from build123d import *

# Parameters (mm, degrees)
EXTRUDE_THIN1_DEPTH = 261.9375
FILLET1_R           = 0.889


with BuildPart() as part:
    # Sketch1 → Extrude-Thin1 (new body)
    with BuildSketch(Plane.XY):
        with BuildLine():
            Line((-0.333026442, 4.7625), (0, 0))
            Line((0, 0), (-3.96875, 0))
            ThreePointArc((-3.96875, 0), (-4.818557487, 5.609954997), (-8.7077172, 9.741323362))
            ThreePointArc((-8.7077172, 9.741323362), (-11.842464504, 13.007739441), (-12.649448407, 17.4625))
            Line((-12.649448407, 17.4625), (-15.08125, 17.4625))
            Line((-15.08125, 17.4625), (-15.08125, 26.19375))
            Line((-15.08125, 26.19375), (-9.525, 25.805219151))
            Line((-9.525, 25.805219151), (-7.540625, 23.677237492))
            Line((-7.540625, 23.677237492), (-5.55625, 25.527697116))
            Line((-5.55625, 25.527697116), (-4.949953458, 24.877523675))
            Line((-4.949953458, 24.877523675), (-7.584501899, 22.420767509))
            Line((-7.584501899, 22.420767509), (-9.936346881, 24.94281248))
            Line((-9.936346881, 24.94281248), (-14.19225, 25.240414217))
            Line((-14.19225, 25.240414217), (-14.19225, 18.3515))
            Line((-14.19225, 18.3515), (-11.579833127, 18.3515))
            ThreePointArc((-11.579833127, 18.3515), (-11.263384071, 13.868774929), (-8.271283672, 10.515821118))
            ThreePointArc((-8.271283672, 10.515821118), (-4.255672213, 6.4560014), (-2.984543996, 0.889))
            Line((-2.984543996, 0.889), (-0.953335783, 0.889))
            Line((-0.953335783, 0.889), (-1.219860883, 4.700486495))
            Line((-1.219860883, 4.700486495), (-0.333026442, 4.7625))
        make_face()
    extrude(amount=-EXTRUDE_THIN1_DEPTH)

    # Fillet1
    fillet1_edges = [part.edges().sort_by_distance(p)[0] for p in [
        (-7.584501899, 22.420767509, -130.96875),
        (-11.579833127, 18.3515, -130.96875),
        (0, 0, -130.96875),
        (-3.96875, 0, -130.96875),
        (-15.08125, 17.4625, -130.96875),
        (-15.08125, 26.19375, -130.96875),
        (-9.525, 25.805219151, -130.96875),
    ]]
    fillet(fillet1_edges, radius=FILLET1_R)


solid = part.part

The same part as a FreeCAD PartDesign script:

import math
import FreeCAD as App
import Part
import Sketcher
from FreeCAD import Vector
Q = App.Units.Quantity


def edges_at(feature, points):
    """Names of the edges that pass closest to the given points."""
    edges = feature.Shape.Edges
    near = lambda p: min(range(len(edges)), key=lambda i: edges[i].distToShape(Part.Vertex(*p))[0])
    return sorted({f"Edge{near(p) + 1}" for p in points})

doc = App.newDocument("Part")
params = doc.addObject("Spreadsheet::Sheet", "Params")
for row, (alias, value) in enumerate([
    ("sketch1_radius", "0.41 in"),
    ("sketch1_radius2", "0.375 in"),
    ("sketch1_width", "0.15625 in"),
    ("sketch1_height", "0.34375 in"),
    ("sketch1_length", "0.035 in"),
    ("pad1_length", "10.3125 in"),
    ("fillet_radius", "0.035 in"),
], start=1):
    params.set(f"A{row}", alias)
    params.set(f"B{row}", "=" + value)
    params.setAlias(f"B{row}", alias)

body = doc.addObject("PartDesign::Body", "Body")

# Sketch on XY plane
sketch1 = doc.addObject("Sketcher::SketchObject", "Sketch")
body.addObject(sketch1)
sketch1.AttachmentSupport = (doc.XY_Plane, [""])
sketch1.MapMode = "FlatFace"
sketch1.addGeometry(Part.LineSegment(Vector(0, 0, 0), Vector(-0.3, 4.8, 0)), False)
sketch1.addGeometry(Part.LineSegment(Vector(-0.3, 4.8, 0), Vector(-1.2, 4.7, 0)), False)
sketch1.addGeometry(Part.LineSegment(Vector(-1.2, 4.7, 0), Vector(-1, 0.9, 0)), False)
sketch1.addGeometry(Part.LineSegment(Vector(-1, 0.9, 0), Vector(-3, 0.9, 0)), False)
sketch1.addGeometry(Part.ArcOfCircle(Part.Circle(Vector(-13.4, 1.4, 0), Vector(0, 0, 1), 10.4), math.radians(-3), math.radians(61)), False)
sketch1.addGeometry(Part.ArcOfCircle(Part.Circle(Vector(-4.9, 16.6, 0), Vector(0, 0, 1), 7), math.radians(165), math.radians(241)), False)
sketch1.addGeometry(Part.LineSegment(Vector(-11.6, 18.4, 0), Vector(-14.2, 18.4, 0)), False)
sketch1.addGeometry(Part.LineSegment(Vector(-14.2, 18.4, 0), Vector(-14.2, 25.2, 0)), False)
sketch1.addGeometry(Part.LineSegment(Vector(-14.2, 25.2, 0), Vector(-9.9, 24.9, 0)), False)
sketch1.addGeometry(Part.LineSegment(Vector(-9.9, 24.9, 0), Vector(-7.6, 22.4, 0)), False)
sketch1.addGeometry(Part.LineSegment(Vector(-7.6, 22.4, 0), Vector(-4.9, 24.9, 0)), False)
sketch1.addGeometry(Part.LineSegment(Vector(-4.9, 24.9, 0), Vector(-5.6, 25.5, 0)), False)
sketch1.addGeometry(Part.LineSegment(Vector(-5.6, 25.5, 0), Vector(-7.5, 23.7, 0)), False)
sketch1.addGeometry(Part.LineSegment(Vector(-7.5, 23.7, 0), Vector(-9.5, 25.8, 0)), False)
sketch1.addGeometry(Part.LineSegment(Vector(-9.5, 25.8, 0), Vector(-15.1, 26.2, 0)), False)
sketch1.addGeometry(Part.LineSegment(Vector(-15.1, 26.2, 0), Vector(-15.1, 17.5, 0)), False)
sketch1.addGeometry(Part.LineSegment(Vector(-15.1, 17.5, 0), Vector(-12.6, 17.5, 0)), False)
sketch1.addGeometry(Part.ArcOfCircle(Part.Circle(Vector(-4.9, 16.6, 0), Vector(0, 0, 1), 7.8), math.radians(173), math.radians(241)), False)
sketch1.addGeometry(Part.ArcOfCircle(Part.Circle(Vector(-13.4, 1.4, 0), Vector(0, 0, 1), 9.5), math.radians(-9), math.radians(61)), False)
sketch1.addGeometry(Part.LineSegment(Vector(-4, 0, 0), Vector(0, 0, 0)), False)
sketch1.addConstraint(Sketcher.Constraint("Coincident", 0, 2, 1, 1))
sketch1.addConstraint(Sketcher.Constraint("Coincident", 1, 2, 2, 1))
sketch1.addConstraint(Sketcher.Constraint("Coincident", 2, 2, 3, 1))
sketch1.addConstraint(Sketcher.Constraint("Coincident", 3, 2, 4, 1))
sketch1.addConstraint(Sketcher.Constraint("Tangent", 4, 2, 5, 2))
sketch1.addConstraint(Sketcher.Constraint("Coincident", 5, 1, 6, 1))
sketch1.addConstraint(Sketcher.Constraint("Coincident", 6, 2, 7, 1))
sketch1.addConstraint(Sketcher.Constraint("Coincident", 7, 2, 8, 1))
sketch1.addConstraint(Sketcher.Constraint("Coincident", 8, 2, 9, 1))
sketch1.addConstraint(Sketcher.Constraint("Coincident", 9, 2, 10, 1))
sketch1.addConstraint(Sketcher.Constraint("Coincident", 10, 2, 11, 1))
sketch1.addConstraint(Sketcher.Constraint("Coincident", 11, 2, 12, 1))
sketch1.addConstraint(Sketcher.Constraint("Coincident", 12, 2, 13, 1))
sketch1.addConstraint(Sketcher.Constraint("Coincident", 13, 2, 14, 1))
sketch1.addConstraint(Sketcher.Constraint("Coincident", 14, 2, 15, 1))
sketch1.addConstraint(Sketcher.Constraint("Coincident", 15, 2, 16, 1))
sketch1.addConstraint(Sketcher.Constraint("Coincident", 16, 2, 17, 1))
sketch1.addConstraint(Sketcher.Constraint("Tangent", 17, 2, 18, 2))
sketch1.addConstraint(Sketcher.Constraint("Coincident", 18, 1, 19, 1))
sketch1.addConstraint(Sketcher.Constraint("Coincident", 19, 2, 0, 1))
sketch1.addConstraint(Sketcher.Constraint("Horizontal", 3))
sketch1.addConstraint(Sketcher.Constraint("Horizontal", 6))
sketch1.addConstraint(Sketcher.Constraint("Vertical", 7))
sketch1.addConstraint(Sketcher.Constraint("Vertical", 15))
sketch1.addConstraint(Sketcher.Constraint("Horizontal", 16))
sketch1.addConstraint(Sketcher.Constraint("Horizontal", 19))
sketch1.addConstraint(Sketcher.Constraint("Coincident", 19, 2, -1, 1))
sketch1.addConstraint(Sketcher.Constraint("Coincident", 17, 3, 5, 3))
sketch1.addConstraint(Sketcher.Constraint("Coincident", 18, 3, 4, 3))
sketch1.addConstraint(Sketcher.Constraint("Perpendicular", 0, 1))
sketch1.addConstraint(Sketcher.Constraint("Perpendicular", 1, 2))
sketch1.addConstraint(Sketcher.Constraint("Perpendicular", 9, 10))
sketch1.addConstraint(Sketcher.Constraint("Perpendicular", 10, 11))
sketch1.addConstraint(Sketcher.Constraint("Perpendicular", 11, 12))
sketch1.addConstraint(Sketcher.Constraint("Perpendicular", 12, 13))
sketch1.addConstraint(Sketcher.Constraint("Parallel", 8, 14))
sketch1.addConstraint(Sketcher.Constraint("Equal", 1, 11))
sketch1.addConstraint(Sketcher.Constraint("Radius", 4, Q("0.41 in")))
sketch1.addConstraint(Sketcher.Constraint("Angle", 0, Q("94 deg")))
sketch1.addConstraint(Sketcher.Constraint("Angle", 8, Q("-4 deg")))
sketch1.addConstraint(Sketcher.Constraint("Angle", 9, Q("-47 deg")))
sketch1.addConstraint(Sketcher.Constraint("Radius", 18, Q("0.375 in")))
sketch1.addConstraint(Sketcher.Constraint("DistanceX", 19, 1, 19, 2, Q("0.15625 in")))
sketch1.addConstraint(Sketcher.Constraint("DistanceY", 15, 2, 15, 1, Q("0.34375 in")))
sketch1.addConstraint(Sketcher.Constraint("DistanceY", 17, 3, 5, 1, Q("0.07 in")))
sketch1.addConstraint(Sketcher.Constraint("DistanceX", 7, 2, 11, 2, Q("0.34 in")))
sketch1.addConstraint(Sketcher.Constraint("Distance", 1, Q("0.035 in")))
sketch1.addConstraint(Sketcher.Constraint("DistanceY", -1, 1, 0, 2, Q("0.1875 in")))
sketch1.addConstraint(Sketcher.Constraint("DistanceY", -1, 1, 2, 2, Q("0.035 in")))
sketch1.addConstraint(Sketcher.Constraint("DistanceX", 11, 2, -1, 1, Q("0.21875 in")))
sketch1.addConstraint(Sketcher.Constraint("DistanceX", 12, 2, -1, 1, Q("0.296875 in")))
sketch1.addConstraint(Sketcher.Constraint("DistanceX", 13, 2, -1, 1, Q("0.375 in")))
sketch1.addConstraint(Sketcher.Constraint("DistanceX", 14, 2, -1, 1, Q("0.59375 in")))
sketch1.addConstraint(Sketcher.Constraint("DistanceY", -1, 1, 14, 2, Q("1.03125 in")))
sketch1.addConstraint(Sketcher.Constraint("Radius", 5, 6.95325))
sketch1.addConstraint(Sketcher.Constraint("DistanceY", 0, 2, 17, 3, Q("0.465 in")))
sketch1.addConstraint(Sketcher.Constraint("DistanceX", 16, 1, 16, 2, 2.431802))
sketch1.addConstraint(Sketcher.Constraint("DistanceX", 9, 2, -1, 1, 7.584502))
sketch1.addConstraint(Sketcher.Constraint("DistanceY", 8, 2, 7, 2, 0.297602))
sketch1.setExpression("Constraints[37]", "Params.sketch1_radius")
sketch1.setExpression("Constraints[41]", "Params.sketch1_radius2")
sketch1.setExpression("Constraints[42]", "Params.sketch1_width")
sketch1.setExpression("Constraints[43]", "Params.sketch1_height")
sketch1.setExpression("Constraints[46]", "Params.sketch1_length")
pad1 = doc.addObject("PartDesign::Pad", "Pad")
body.addObject(pad1)
pad1.Profile = sketch1
pad1.setExpression("Length", "Params.pad1_length")
pad1.Reversed = True
doc.recompute()

fillet = doc.addObject("PartDesign::Fillet", "Fillet")
body.addObject(fillet)
fillet.Base = (pad1, edges_at(pad1, [
    (-7.585, 22.421, -130.969),
    (-11.58, 18.352, -130.969),
    (0, 0, -130.969),
    (-3.969, 0, -130.969),
    (-15.081, 17.462, -130.969),
    (-15.081, 26.194, -130.969),
    (-9.525, 25.805, -130.969),
]))
fillet.setExpression("Radius", "Params.fillet_radius")

doc.recompute()
